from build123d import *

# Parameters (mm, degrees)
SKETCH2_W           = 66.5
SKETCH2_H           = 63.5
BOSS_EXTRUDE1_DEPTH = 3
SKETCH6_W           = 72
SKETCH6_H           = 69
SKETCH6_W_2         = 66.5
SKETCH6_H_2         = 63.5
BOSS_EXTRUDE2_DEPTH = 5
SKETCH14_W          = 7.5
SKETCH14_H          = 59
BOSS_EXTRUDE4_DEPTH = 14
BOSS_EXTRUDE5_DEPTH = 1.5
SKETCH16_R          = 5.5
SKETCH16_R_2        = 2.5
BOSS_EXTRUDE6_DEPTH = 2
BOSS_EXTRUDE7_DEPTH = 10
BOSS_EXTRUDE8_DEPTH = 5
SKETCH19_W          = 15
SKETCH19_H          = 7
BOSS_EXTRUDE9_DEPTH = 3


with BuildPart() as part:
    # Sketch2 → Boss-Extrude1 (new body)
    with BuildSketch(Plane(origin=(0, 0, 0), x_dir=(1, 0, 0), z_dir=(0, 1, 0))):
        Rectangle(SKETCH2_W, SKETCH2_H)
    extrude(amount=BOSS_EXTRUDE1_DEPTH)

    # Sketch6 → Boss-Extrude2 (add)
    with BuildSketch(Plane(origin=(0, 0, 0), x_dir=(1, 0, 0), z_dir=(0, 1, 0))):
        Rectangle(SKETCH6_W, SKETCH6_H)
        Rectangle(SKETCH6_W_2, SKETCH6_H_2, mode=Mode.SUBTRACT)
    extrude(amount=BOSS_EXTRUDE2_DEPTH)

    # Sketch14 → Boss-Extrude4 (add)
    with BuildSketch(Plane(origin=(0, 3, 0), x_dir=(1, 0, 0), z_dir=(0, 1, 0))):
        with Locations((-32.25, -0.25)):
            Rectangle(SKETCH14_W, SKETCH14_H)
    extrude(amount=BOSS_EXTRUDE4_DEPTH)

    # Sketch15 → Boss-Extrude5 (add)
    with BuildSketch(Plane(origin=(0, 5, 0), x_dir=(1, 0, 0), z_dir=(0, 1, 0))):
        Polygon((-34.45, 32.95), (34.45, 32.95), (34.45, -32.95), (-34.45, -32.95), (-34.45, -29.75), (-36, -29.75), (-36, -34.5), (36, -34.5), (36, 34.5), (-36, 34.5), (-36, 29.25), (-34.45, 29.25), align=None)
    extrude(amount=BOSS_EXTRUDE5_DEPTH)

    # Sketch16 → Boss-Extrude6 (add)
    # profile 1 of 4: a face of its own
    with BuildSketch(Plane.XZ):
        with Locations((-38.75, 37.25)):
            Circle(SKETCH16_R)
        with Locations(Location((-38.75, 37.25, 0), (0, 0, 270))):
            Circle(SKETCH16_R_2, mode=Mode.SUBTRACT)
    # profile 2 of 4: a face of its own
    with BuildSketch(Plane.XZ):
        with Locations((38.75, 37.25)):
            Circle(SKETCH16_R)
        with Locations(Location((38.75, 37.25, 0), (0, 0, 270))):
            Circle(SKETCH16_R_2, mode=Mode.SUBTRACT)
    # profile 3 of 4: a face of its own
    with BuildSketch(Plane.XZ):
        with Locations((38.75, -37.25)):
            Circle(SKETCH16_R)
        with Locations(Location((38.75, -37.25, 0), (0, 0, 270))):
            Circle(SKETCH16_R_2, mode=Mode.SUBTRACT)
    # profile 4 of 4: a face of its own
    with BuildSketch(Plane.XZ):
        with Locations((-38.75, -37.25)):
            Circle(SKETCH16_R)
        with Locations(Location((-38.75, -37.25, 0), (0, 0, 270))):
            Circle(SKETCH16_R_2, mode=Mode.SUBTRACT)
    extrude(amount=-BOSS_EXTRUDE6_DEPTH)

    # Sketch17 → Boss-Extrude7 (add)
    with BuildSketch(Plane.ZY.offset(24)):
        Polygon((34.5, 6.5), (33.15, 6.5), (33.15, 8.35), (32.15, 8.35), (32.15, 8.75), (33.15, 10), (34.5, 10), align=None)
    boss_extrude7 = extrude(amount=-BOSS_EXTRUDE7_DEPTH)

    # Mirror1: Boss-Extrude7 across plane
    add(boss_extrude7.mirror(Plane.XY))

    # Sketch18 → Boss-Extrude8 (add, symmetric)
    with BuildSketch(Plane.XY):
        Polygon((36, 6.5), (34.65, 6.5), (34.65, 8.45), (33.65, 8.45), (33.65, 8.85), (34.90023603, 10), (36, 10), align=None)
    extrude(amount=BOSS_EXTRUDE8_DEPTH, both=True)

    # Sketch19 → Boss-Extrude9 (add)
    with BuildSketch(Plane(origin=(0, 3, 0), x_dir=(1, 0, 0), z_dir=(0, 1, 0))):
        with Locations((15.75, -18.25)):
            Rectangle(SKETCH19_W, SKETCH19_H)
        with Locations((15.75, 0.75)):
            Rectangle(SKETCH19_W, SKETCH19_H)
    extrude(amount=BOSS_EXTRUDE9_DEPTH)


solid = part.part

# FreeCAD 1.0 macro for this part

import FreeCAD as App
import Part
import Sketcher
from FreeCAD import Vector

doc = App.newDocument("Part")
body = doc.addObject("PartDesign::Body", "Body")

sketch1 = body.newObject("Sketcher::SketchObject", "Sketch")
sketch1.AttachmentSupport = (doc.getObject("XZ_Plane"), [""])
sketch1.MapMode = "FlatFace"
sketch1.addGeometry(Part.LineSegment(Vector(-33, -32, 0), Vector(-33, 32, 0)), False)
sketch1.addGeometry(Part.LineSegment(Vector(-33, 32, 0), Vector(33, 32, 0)), False)
sketch1.addGeometry(Part.LineSegment(Vector(33, 32, 0), Vector(33, -32, 0)), False)
sketch1.addGeometry(Part.LineSegment(Vector(33, -32, 0), Vector(-33, -32, 0)), False)
sketch1.addConstraint(Sketcher.Constraint("Coincident", 0, 2, 1, 1))
sketch1.addConstraint(Sketcher.Constraint("Coincident", 1, 2, 2, 1))
sketch1.addConstraint(Sketcher.Constraint("Coincident", 2, 2, 3, 1))
sketch1.addConstraint(Sketcher.Constraint("Coincident", 3, 2, 0, 1))
sketch1.addConstraint(Sketcher.Constraint("Vertical", 0))
sketch1.addConstraint(Sketcher.Constraint("Horizontal", 1))
sketch1.addConstraint(Sketcher.Constraint("Vertical", 2))
sketch1.addConstraint(Sketcher.Constraint("Horizontal", 3))
sketch1.addConstraint(Sketcher.Constraint("Symmetric", 0, 2, 2, 2, -1, 1))
sketch1.addConstraint(Sketcher.Constraint("DistanceX", 1, 1, 1, 2, 66.5))
sketch1.addConstraint(Sketcher.Constraint("DistanceY", 0, 1, 0, 2, 63.5))
pad1 = body.newObject("PartDesign::Pad", "Pad")
pad1.Profile = sketch1
pad1.Length = 3
pad1.Reversed = True

sketch2 = body.newObject("Sketcher::SketchObject", "Sketch001")
sketch2.AttachmentSupport = (doc.getObject("XZ_Plane"), [""])
sketch2.MapMode = "FlatFace"
sketch2.addGeometry(Part.LineSegment(Vector(-36, -34, 0), Vector(-36, 34, 0)), False)
sketch2.addGeometry(Part.LineSegment(Vector(-36, 34, 0), Vector(36, 34, 0)), False)
sketch2.addGeometry(Part.LineSegment(Vector(36, 34, 0), Vector(36, -34, 0)), False)
sketch2.addGeometry(Part.LineSegment(Vector(36, -34, 0), Vector(-36, -34, 0)), False)
sketch2.addGeometry(Part.LineSegment(Vector(33, 32, 0), Vector(-33, 32, 0)), False)
sketch2.addGeometry(Part.LineSegment(Vector(-33, 32, 0), Vector(-33, -32, 0)), False)
sketch2.addGeometry(Part.LineSegment(Vector(-33, -32, 0), Vector(33, -32, 0)), False)
sketch2.addGeometry(Part.LineSegment(Vector(33, -32, 0), Vector(33, 32, 0)), False)
sketch2.addConstraint(Sketcher.Constraint("Coincident", 0, 2, 1, 1))
sketch2.addConstraint(Sketcher.Constraint("Coincident", 1, 2, 2, 1))
sketch2.addConstraint(Sketcher.Constraint("Coincident", 2, 2, 3, 1))
sketch2.addConstraint(Sketcher.Constraint("Coincident", 3, 2, 0, 1))
sketch2.addConstraint(Sketcher.Constraint("Coincident", 4, 2, 5, 1))
sketch2.addConstraint(Sketcher.Constraint("Coincident", 5, 2, 6, 1))
sketch2.addConstraint(Sketcher.Constraint("Coincident", 6, 2, 7, 1))
sketch2.addConstraint(Sketcher.Constraint("Coincident", 7, 2, 4, 1))
sketch2.addConstraint(Sketcher.Constraint("Vertical", 0))
sketch2.addConstraint(Sketcher.Constraint("Horizontal", 1))
sketch2.addConstraint(Sketcher.Constraint("Vertical", 2))
sketch2.addConstraint(Sketcher.Constraint("Horizontal", 3))
sketch2.addConstraint(Sketcher.Constraint("Horizontal", 4))
sketch2.addConstraint(Sketcher.Constraint("Vertical", 5))
sketch2.addConstraint(Sketcher.Constraint("Horizontal", 6))
sketch2.addConstraint(Sketcher.Constraint("Vertical", 7))
sketch2.addConstraint(Sketcher.Constraint("Symmetric", 0, 2, 2, 2, -1, 1))
sketch2.addConstraint(Sketcher.Constraint("Symmetric", 4, 2, 6, 2, -1, 1))
sketch2.addConstraint(Sketcher.Constraint("DistanceX", 1, 1, 1, 2, 72.0))
sketch2.addConstraint(Sketcher.Constraint("DistanceY", 0, 1, 0, 2, 69.0))
sketch2.addConstraint(Sketcher.Constraint("DistanceX", 4, 2, 4, 1, 66.5))
sketch2.addConstraint(Sketcher.Constraint("DistanceY", 5, 2, 5, 1, 63.5))
pad2 = body.newObject("PartDesign::Pad", "Pad001")
pad2.Profile = sketch2
pad2.Length = 5
pad2.Reversed = True

sketch3 = body.newObject("Sketcher::SketchObject", "Sketch002")
sketch3.AttachmentSupport = (doc.getObject("XZ_Plane"), [""])
sketch3.MapMode = "FlatFace"
sketch3.AttachmentOffset = App.Placement(Vector(0, 0, -3), App.Rotation())
sketch3.addGeometry(Part.LineSegment(Vector(-36, -29, 0), Vector(-36, 30, 0)), False)
sketch3.addGeometry(Part.LineSegment(Vector(-36, 30, 0), Vector(-28, 30, 0)), False)
sketch3.addGeometry(Part.LineSegment(Vector(-28, 30, 0), Vector(-28, -29, 0)), False)
sketch3.addGeometry(Part.LineSegment(Vector(-28, -29, 0), Vector(-36, -29, 0)), False)
sketch3.addConstraint(Sketcher.Constraint("Coincident", 0, 2, 1, 1))
sketch3.addConstraint(Sketcher.Constraint("Coincident", 1, 2, 2, 1))
sketch3.addConstraint(Sketcher.Constraint("Coincident", 2, 2, 3, 1))
sketch3.addConstraint(Sketcher.Constraint("Coincident", 3, 2, 0, 1))
sketch3.addConstraint(Sketcher.Constraint("Vertical", 0))
sketch3.addConstraint(Sketcher.Constraint("Horizontal", 1))
sketch3.addConstraint(Sketcher.Constraint("Vertical", 2))
sketch3.addConstraint(Sketcher.Constraint("Horizontal", 3))
sketch3.addConstraint(Sketcher.Constraint("DistanceY", 0, 1, 0, 2, 59.0))
sketch3.addConstraint(Sketcher.Constraint("DistanceX", 1, 1, 1, 2, 7.5))
sketch3.addConstraint(Sketcher.Constraint("DistanceX", 0, 2, -1, 1, 36.0))
sketch3.addConstraint(Sketcher.Constraint("DistanceY", -1, 1, 0, 2, 29.75))
pad3 = body.newObject("PartDesign::Pad", "Pad002")
pad3.Profile = sketch3
pad3.Length = 14
pad3.Reversed = True

sketch4 = body.newObject("Sketcher::SketchObject", "Sketch003")
sketch4.AttachmentSupport = (doc.getObject("XZ_Plane"), [""])
sketch4.MapMode = "FlatFace"
sketch4.AttachmentOffset = App.Placement(Vector(0, 0, -5), App.Rotation())
sketch4.addGeometry(Part.LineSegment(Vector(-34.5, -33, 0), Vector(34.5, -33, 0)), False)
sketch4.addGeometry(Part.LineSegment(Vector(34.5, -33, 0), Vector(34.5, 33, 0)), False)
sketch4.addGeometry(Part.LineSegment(Vector(34.5, 33, 0), Vector(-34.5, 33, 0)), False)
sketch4.addGeometry(Part.LineSegment(Vector(-34.5, 33, 0), Vector(-34.5, 29.8, 0)), False)
sketch4.addGeometry(Part.LineSegment(Vector(-34.5, 29.8, 0), Vector(-36, 29.8, 0)), False)
sketch4.addGeometry(Part.LineSegment(Vector(-36, 29.8, 0), Vector(-36, 34.5, 0)), False)
sketch4.addGeometry(Part.LineSegment(Vector(-36, 34.5, 0), Vector(36, 34.5, 0)), False)
sketch4.addGeometry(Part.LineSegment(Vector(36, 34.5, 0), Vector(36, -34.5, 0)), False)
sketch4.addGeometry(Part.LineSegment(Vector(36, -34.5, 0), Vector(-36, -34.5, 0)), False)
sketch4.addGeometry(Part.LineSegment(Vector(-36, -34.5, 0), Vector(-36, -29.2, 0)), False)
sketch4.addGeometry(Part.LineSegment(Vector(-36, -29.2, 0), Vector(-34.5, -29.2, 0)), False)
sketch4.addGeometry(Part.LineSegment(Vector(-34.5, -29.2, 0), Vector(-34.5, -33, 0)), False)
sketch4.addConstraint(Sketcher.Constraint("Coincident", 0, 2, 1, 1))
sketch4.addConstraint(Sketcher.Constraint("Coincident", 1, 2, 2, 1))
sketch4.addConstraint(Sketcher.Constraint("Coincident", 2, 2, 3, 1))
sketch4.addConstraint(Sketcher.Constraint("Coincident", 3, 2, 4, 1))
sketch4.addConstraint(Sketcher.Constraint("Coincident", 4, 2, 5, 1))
sketch4.addConstraint(Sketcher.Constraint("Coincident", 5, 2, 6, 1))
sketch4.addConstraint(Sketcher.Constraint("Coincident", 6, 2, 7, 1))
sketch4.addConstraint(Sketcher.Constraint("Coincident", 7, 2, 8, 1))
sketch4.addConstraint(Sketcher.Constraint("Coincident", 8, 2, 9, 1))
sketch4.addConstraint(Sketcher.Constraint("Coincident", 9, 2, 10, 1))
sketch4.addConstraint(Sketcher.Constraint("Coincident", 10, 2, 11, 1))
sketch4.addConstraint(Sketcher.Constraint("Coincident", 11, 2, 0, 1))
sketch4.addConstraint(Sketcher.Constraint("Horizontal", 0))
sketch4.addConstraint(Sketcher.Constraint("Vertical", 1))
sketch4.addConstraint(Sketcher.Constraint("Horizontal", 2))
sketch4.addConstraint(Sketcher.Constraint("Vertical", 3))
sketch4.addConstraint(Sketcher.Constraint("Horizontal", 4))
sketch4.addConstraint(Sketcher.Constraint("Vertical", 5))
sketch4.addConstraint(Sketcher.Constraint("Horizontal", 6))
sketch4.addConstraint(Sketcher.Constraint("Vertical", 7))
sketch4.addConstraint(Sketcher.Constraint("Horizontal", 8))
sketch4.addConstraint(Sketcher.Constraint("Vertical", 9))
sketch4.addConstraint(Sketcher.Constraint("Horizontal", 10))
sketch4.addConstraint(Sketcher.Constraint("Vertical", 11))
sketch4.addConstraint(Sketcher.Constraint("Symmetric", 0, 2, 2, 2, -1, 1))
sketch4.addConstraint(Sketcher.Constraint("Symmetric", 5, 2, 7, 2, -1, 1))
sketch4.addConstraint(Sketcher.Constraint("Vertical", 5, 2, 8, 2))
sketch4.addConstraint(Sketcher.Constraint("Vertical", 3, 2, 10, 2))
sketch4.addConstraint(Sketcher.Constraint("DistanceX", 6, 1, 6, 2, 72.0))
sketch4.addConstraint(Sketcher.Constraint("DistanceY", 7, 2, 7, 1, 69.0))
sketch4.addConstraint(Sketcher.Constraint("DistanceX", 0, 1, 0, 2, 68.9))
sketch4.addConstraint(Sketcher.Constraint("DistanceY", 1, 1, 1, 2, 65.9))
sketch4.addConstraint(Sketcher.Constraint("DistanceY", 3, 2, 3, 1, 3.2))
sketch4.addConstraint(Sketcher.Constraint("DistanceY", 11, 2, 11, 1, 3.7))
pad4 = body.newObject("PartDesign::Pad", "Pad003")
pad4.Profile = sketch4
pad4.Length = 1.5
pad4.Reversed = True

sketch5 = body.newObject("Sketcher::SketchObject", "Sketch004")
sketch5.AttachmentSupport = (doc.getObject("XZ_Plane"), [""])
sketch5.MapMode = "FlatFace"
sketch5.addGeometry(Part.Circle(Vector(-38.8, 37.2, 0), Vector(0, 0, 1), 5.5), False)
sketch5.addGeometry(Part.Circle(Vector(-38.8, 37.2, 0), Vector(0, 0, 1), 2.5), False)
sketch5.addGeometry(Part.Circle(Vector(38.8, 37.2, 0), Vector(0, 0, 1), 5.5), False)
sketch5.addGeometry(Part.Circle(Vector(38.8, 37.2, 0), Vector(0, 0, 1), 2.5), False)
sketch5.addGeometry(Part.Circle(Vector(38.8, -37.2, 0), Vector(0, 0, 1), 5.5), False)
sketch5.addGeometry(Part.Circle(Vector(38.8, -37.2, 0), Vector(0, 0, 1), 2.5), False)
sketch5.addGeometry(Part.Circle(Vector(-38.8, -37.2, 0), Vector(0, 0, 1), 5.5), False)
sketch5.addGeometry(Part.Circle(Vector(-38.8, -37.2, 0), Vector(0, 0, 1), 2.5), False)
sketch5.addConstraint(Sketcher.Constraint("Coincident", 1, 3, 0, 3))
sketch5.addConstraint(Sketcher.Constraint("Coincident", 3, 3, 2, 3))
sketch5.addConstraint(Sketcher.Constraint("Coincident", 5, 3, 4, 3))
sketch5.addConstraint(Sketcher.Constraint("Coincident", 7, 3, 6, 3))
sketch5.addConstraint(Sketcher.Constraint("Equal", 0, 2))
sketch5.addConstraint(Sketcher.Constraint("Equal", 1, 3))
sketch5.addConstraint(Sketcher.Constraint("Equal", 2, 4))
sketch5.addConstraint(Sketcher.Constraint("Equal", 3, 5))
sketch5.addConstraint(Sketcher.Constraint("Equal", 4, 6))
sketch5.addConstraint(Sketcher.Constraint("Equal", 5, 7))
sketch5.addConstraint(Sketcher.Constraint("Symmetric", 0, 3, 4, 3, -1, 1))
sketch5.addConstraint(Sketcher.Constraint("Symmetric", 2, 3, 6, 3, -1, 1))
sketch5.addConstraint(Sketcher.Constraint("Symmetric", 0, 3, 2, 3, -2))
sketch5.addConstraint(Sketcher.Constraint("Diameter", 0, 11.0))
sketch5.addConstraint(Sketcher.Constraint("Diameter", 1, 5.0))
sketch5.addConstraint(Sketcher.Constraint("DistanceX", 0, 3, 2, 3, 77.5))
sketch5.addConstraint(Sketcher.Constraint("DistanceY", 4, 3, 2, 3, 74.5))
pad5 = body.newObject("PartDesign::Pad", "Pad004")
pad5.Profile = sketch5
pad5.Length = 2
pad5.Reversed = True

sketch6 = body.newObject("Sketcher::SketchObject", "Sketch005")
sketch6.AttachmentSupport = (doc.getObject("YZ_Plane"), [""])
sketch6.MapMode = "FlatFace"
sketch6.AttachmentOffset = App.Placement(Vector(0, 0, -24), App.Rotation())
sketch6.addGeometry(Part.LineSegment(Vector(6.5, 33.15, 0), Vector(6.5, 34.5, 0)), False)
sketch6.addGeometry(Part.LineSegment(Vector(6.5, 34.5, 0), Vector(10, 34.5, 0)), False)
sketch6.addGeometry(Part.LineSegment(Vector(10, 34.5, 0), Vector(10, 33.15, 0)), False)
sketch6.addGeometry(Part.LineSegment(Vector(10, 33.15, 0), Vector(8.75, 32.15, 0)), False)
sketch6.addGeometry(Part.LineSegment(Vector(8.75, 32.15, 0), Vector(8.35, 32.15, 0)), False)
sketch6.addGeometry(Part.LineSegment(Vector(8.35, 32.15, 0), Vector(8.35, 33.15, 0)), False)
sketch6.addGeometry(Part.LineSegment(Vector(8.35, 33.15, 0), Vector(6.5, 33.15, 0)), False)
sketch6.addConstraint(Sketcher.Constraint("Coincident", 0, 2, 1, 1))
sketch6.addConstraint(Sketcher.Constraint("Coincident", 1, 2, 2, 1))
sketch6.addConstraint(Sketcher.Constraint("Coincident", 2, 2, 3, 1))
sketch6.addConstraint(Sketcher.Constraint("Coincident", 3, 2, 4, 1))
sketch6.addConstraint(Sketcher.Constraint("Coincident", 4, 2, 5, 1))
sketch6.addConstraint(Sketcher.Constraint("Coincident", 5, 2, 6, 1))
sketch6.addConstraint(Sketcher.Constraint("Coincident", 6, 2, 0, 1))
sketch6.addConstraint(Sketcher.Constraint("Vertical", 0))
sketch6.addConstraint(Sketcher.Constraint("Horizontal", 1))
sketch6.addConstraint(Sketcher.Constraint("Vertical", 2))
sketch6.addConstraint(Sketcher.Constraint("Horizontal", 4))
sketch6.addConstraint(Sketcher.Constraint("Vertical", 5))
sketch6.addConstraint(Sketcher.Constraint("Horizontal", 6))
sketch6.addConstraint(Sketcher.Constraint("Horizontal", 2, 2, 5, 2))
sketch6.addConstraint(Sketcher.Constraint("DistanceY", 5, 1, 5, 2, 1.0))
sketch6.addConstraint(Sketcher.Constraint("DistanceX", 1, 1, 1, 2, 3.5))
sketch6.addConstraint(Sketcher.Constraint("DistanceX", 4, 2, 4, 1, 0.4))
sketch6.addConstraint(Sketcher.Constraint("DistanceX", -1, 1, 1, 2, 10.0))
sketch6.addConstraint(Sketcher.Constraint("DistanceX", 6, 2, 6, 1, 1.85))
sketch6.addConstraint(Sketcher.Constraint("DistanceY", 0, 1, 0, 2, 1.35))
sketch6.addConstraint(Sketcher.Constraint("DistanceY", -1, 1, 0, 2, 34.5))
pad6 = body.newObject("PartDesign::Pad", "Pad005")
pad6.Profile = sketch6
pad6.Length = 10
doc.recompute()

mirrored = body.newObject("PartDesign::Mirrored", "Mirrored")
mirrored.Originals = [pad6]
mirrored.MirrorPlane = (doc.getObject("XY_Plane"), [""])
body.Tip = mirrored

sketch7 = body.newObject("Sketcher::SketchObject", "Sketch006")
sketch7.AttachmentSupport = (doc.getObject("XY_Plane"), [""])
sketch7.MapMode = "FlatFace"
sketch7.addGeometry(Part.LineSegment(Vector(34.65, 6.5, 0), Vector(36, 6.5, 0)), False)
sketch7.addGeometry(Part.LineSegment(Vector(36, 6.5, 0), Vector(36, 10, 0)), False)
sketch7.addGeometry(Part.LineSegment(Vector(36, 10, 0), Vector(34.9, 10, 0)), False)
sketch7.addGeometry(Part.LineSegment(Vector(34.9, 10, 0), Vector(33.65, 8.85, 0)), False)
sketch7.addGeometry(Part.LineSegment(Vector(33.65, 8.85, 0), Vector(33.65, 8.45, 0)), False)
sketch7.addGeometry(Part.LineSegment(Vector(33.65, 8.45, 0), Vector(34.65, 8.45, 0)), False)
sketch7.addGeometry(Part.LineSegment(Vector(34.65, 8.45, 0), Vector(34.65, 6.5, 0)), False)
sketch7.addConstraint(Sketcher.Constraint("Coincident", 0, 2, 1, 1))
sketch7.addConstraint(Sketcher.Constraint("Coincident", 1, 2, 2, 1))
sketch7.addConstraint(Sketcher.Constraint("Coincident", 2, 2, 3, 1))
sketch7.addConstraint(Sketcher.Constraint("Coincident", 3, 2, 4, 1))
sketch7.addConstraint(Sketcher.Constraint("Coincident", 4, 2, 5, 1))
sketch7.addConstraint(Sketcher.Constraint("Coincident", 5, 2, 6, 1))
sketch7.addConstraint(Sketcher.Constraint("Coincident", 6, 2, 0, 1))
sketch7.addConstraint(Sketcher.Constraint("Horizontal", 0))
sketch7.addConstraint(Sketcher.Constraint("Vertical", 1))
sketch7.addConstraint(Sketcher.Constraint("Horizontal", 2))
sketch7.addConstraint(Sketcher.Constraint("Vertical", 4))
sketch7.addConstraint(Sketcher.Constraint("Horizontal", 5))
sketch7.addConstraint(Sketcher.Constraint("Vertical", 6))
sketch7.addConstraint(Sketcher.Constraint("DistanceX", 5, 1, 5, 2, 1.0))
sketch7.addConstraint(Sketcher.Constraint("DistanceY", 1, 1, 1, 2, 3.5))
sketch7.addConstraint(Sketcher.Constraint("DistanceY", 4, 2, 4, 1, 0.4))
sketch7.addConstraint(Sketcher.Constraint("DistanceX", -1, 1, 0, 2, 36.0))
sketch7.addConstraint(Sketcher.Constraint("DistanceY", -1, 1, 1, 2, 10.0))
sketch7.addConstraint(Sketcher.Constraint("DistanceX", 0, 1, 0, 2, 1.35))
sketch7.addConstraint(Sketcher.Constraint("DistanceY", 6, 2, 6, 1, 1.95))
sketch7.addConstraint(Sketcher.Constraint("DistanceX", 2, 2, 2, 1, 1.099764))
pad7 = body.newObject("PartDesign::Pad", "Pad006")
pad7.Profile = sketch7
pad7.Length = 10
pad7.Midplane = True

sketch8 = body.newObject("Sketcher::SketchObject", "Sketch007")
sketch8.AttachmentSupport = (doc.getObject("XZ_Plane"), [""])
sketch8.MapMode = "FlatFace"
sketch8.AttachmentOffset = App.Placement(Vector(0, 0, -3), App.Rotation())
sketch8.addGeometry(Part.LineSegment(Vector(8, 15, 0), Vector(8, 22, 0)), False)
sketch8.addGeometry(Part.LineSegment(Vector(8, 22, 0), Vector(23, 22, 0)), False)
sketch8.addGeometry(Part.LineSegment(Vector(23, 22, 0), Vector(23, 15, 0)), False)
sketch8.addGeometry(Part.LineSegment(Vector(23, 15, 0), Vector(8, 15, 0)), False)
sketch8.addGeometry(Part.LineSegment(Vector(8, -4, 0), Vector(8, 3, 0)), False)
sketch8.addGeometry(Part.LineSegment(Vector(8, 3, 0), Vector(23, 3, 0)), False)
sketch8.addGeometry(Part.LineSegment(Vector(23, 3, 0), Vector(23, -4, 0)), False)
sketch8.addGeometry(Part.LineSegment(Vector(23, -4, 0), Vector(8, -4, 0)), False)
sketch8.addConstraint(Sketcher.Constraint("Coincident", 0, 2, 1, 1))
sketch8.addConstraint(Sketcher.Constraint("Coincident", 1, 2, 2, 1))
sketch8.addConstraint(Sketcher.Constraint("Coincident", 2, 2, 3, 1))
sketch8.addConstraint(Sketcher.Constraint("Coincident", 3, 2, 0, 1))
sketch8.addConstraint(Sketcher.Constraint("Coincident", 4, 2, 5, 1))
sketch8.addConstraint(Sketcher.Constraint("Coincident", 5, 2, 6, 1))
sketch8.addConstraint(Sketcher.Constraint("Coincident", 6, 2, 7, 1))
sketch8.addConstraint(Sketcher.Constraint("Coincident", 7, 2, 4, 1))
sketch8.addConstraint(Sketcher.Constraint("Vertical", 0))
sketch8.addConstraint(Sketcher.Constraint("Horizontal", 1))
sketch8.addConstraint(Sketcher.Constraint("Vertical", 2))
sketch8.addConstraint(Sketcher.Constraint("Horizontal", 3))
sketch8.addConstraint(Sketcher.Constraint("Vertical", 4))
sketch8.addConstraint(Sketcher.Constraint("Horizontal", 5))
sketch8.addConstraint(Sketcher.Constraint("Vertical", 6))
sketch8.addConstraint(Sketcher.Constraint("Horizontal", 7))
sketch8.addConstraint(Sketcher.Constraint("Vertical", 3, 2, 4, 2))
sketch8.addConstraint(Sketcher.Constraint("Vertical", 2, 2, 5, 2))
sketch8.addConstraint(Sketcher.Constraint("Equal", 2, 4))
sketch8.addConstraint(Sketcher.Constraint("DistanceX", 1, 1, 1, 2, 15.0))
sketch8.addConstraint(Sketcher.Constraint("DistanceY", 0, 1, 0, 2, 7.0))
sketch8.addConstraint(Sketcher.Constraint("DistanceY", 4, 2, 3, 2, 12.0))
sketch8.addConstraint(Sketcher.Constraint("DistanceX", -1, 1, 0, 2, 8.25))
sketch8.addConstraint(Sketcher.Constraint("DistanceY", -1, 1, 0, 2, 21.75))
pad8 = body.newObject("PartDesign::Pad", "Pad007")
pad8.Profile = sketch8
pad8.Length = 3
pad8.Reversed = True

doc.recompute()
